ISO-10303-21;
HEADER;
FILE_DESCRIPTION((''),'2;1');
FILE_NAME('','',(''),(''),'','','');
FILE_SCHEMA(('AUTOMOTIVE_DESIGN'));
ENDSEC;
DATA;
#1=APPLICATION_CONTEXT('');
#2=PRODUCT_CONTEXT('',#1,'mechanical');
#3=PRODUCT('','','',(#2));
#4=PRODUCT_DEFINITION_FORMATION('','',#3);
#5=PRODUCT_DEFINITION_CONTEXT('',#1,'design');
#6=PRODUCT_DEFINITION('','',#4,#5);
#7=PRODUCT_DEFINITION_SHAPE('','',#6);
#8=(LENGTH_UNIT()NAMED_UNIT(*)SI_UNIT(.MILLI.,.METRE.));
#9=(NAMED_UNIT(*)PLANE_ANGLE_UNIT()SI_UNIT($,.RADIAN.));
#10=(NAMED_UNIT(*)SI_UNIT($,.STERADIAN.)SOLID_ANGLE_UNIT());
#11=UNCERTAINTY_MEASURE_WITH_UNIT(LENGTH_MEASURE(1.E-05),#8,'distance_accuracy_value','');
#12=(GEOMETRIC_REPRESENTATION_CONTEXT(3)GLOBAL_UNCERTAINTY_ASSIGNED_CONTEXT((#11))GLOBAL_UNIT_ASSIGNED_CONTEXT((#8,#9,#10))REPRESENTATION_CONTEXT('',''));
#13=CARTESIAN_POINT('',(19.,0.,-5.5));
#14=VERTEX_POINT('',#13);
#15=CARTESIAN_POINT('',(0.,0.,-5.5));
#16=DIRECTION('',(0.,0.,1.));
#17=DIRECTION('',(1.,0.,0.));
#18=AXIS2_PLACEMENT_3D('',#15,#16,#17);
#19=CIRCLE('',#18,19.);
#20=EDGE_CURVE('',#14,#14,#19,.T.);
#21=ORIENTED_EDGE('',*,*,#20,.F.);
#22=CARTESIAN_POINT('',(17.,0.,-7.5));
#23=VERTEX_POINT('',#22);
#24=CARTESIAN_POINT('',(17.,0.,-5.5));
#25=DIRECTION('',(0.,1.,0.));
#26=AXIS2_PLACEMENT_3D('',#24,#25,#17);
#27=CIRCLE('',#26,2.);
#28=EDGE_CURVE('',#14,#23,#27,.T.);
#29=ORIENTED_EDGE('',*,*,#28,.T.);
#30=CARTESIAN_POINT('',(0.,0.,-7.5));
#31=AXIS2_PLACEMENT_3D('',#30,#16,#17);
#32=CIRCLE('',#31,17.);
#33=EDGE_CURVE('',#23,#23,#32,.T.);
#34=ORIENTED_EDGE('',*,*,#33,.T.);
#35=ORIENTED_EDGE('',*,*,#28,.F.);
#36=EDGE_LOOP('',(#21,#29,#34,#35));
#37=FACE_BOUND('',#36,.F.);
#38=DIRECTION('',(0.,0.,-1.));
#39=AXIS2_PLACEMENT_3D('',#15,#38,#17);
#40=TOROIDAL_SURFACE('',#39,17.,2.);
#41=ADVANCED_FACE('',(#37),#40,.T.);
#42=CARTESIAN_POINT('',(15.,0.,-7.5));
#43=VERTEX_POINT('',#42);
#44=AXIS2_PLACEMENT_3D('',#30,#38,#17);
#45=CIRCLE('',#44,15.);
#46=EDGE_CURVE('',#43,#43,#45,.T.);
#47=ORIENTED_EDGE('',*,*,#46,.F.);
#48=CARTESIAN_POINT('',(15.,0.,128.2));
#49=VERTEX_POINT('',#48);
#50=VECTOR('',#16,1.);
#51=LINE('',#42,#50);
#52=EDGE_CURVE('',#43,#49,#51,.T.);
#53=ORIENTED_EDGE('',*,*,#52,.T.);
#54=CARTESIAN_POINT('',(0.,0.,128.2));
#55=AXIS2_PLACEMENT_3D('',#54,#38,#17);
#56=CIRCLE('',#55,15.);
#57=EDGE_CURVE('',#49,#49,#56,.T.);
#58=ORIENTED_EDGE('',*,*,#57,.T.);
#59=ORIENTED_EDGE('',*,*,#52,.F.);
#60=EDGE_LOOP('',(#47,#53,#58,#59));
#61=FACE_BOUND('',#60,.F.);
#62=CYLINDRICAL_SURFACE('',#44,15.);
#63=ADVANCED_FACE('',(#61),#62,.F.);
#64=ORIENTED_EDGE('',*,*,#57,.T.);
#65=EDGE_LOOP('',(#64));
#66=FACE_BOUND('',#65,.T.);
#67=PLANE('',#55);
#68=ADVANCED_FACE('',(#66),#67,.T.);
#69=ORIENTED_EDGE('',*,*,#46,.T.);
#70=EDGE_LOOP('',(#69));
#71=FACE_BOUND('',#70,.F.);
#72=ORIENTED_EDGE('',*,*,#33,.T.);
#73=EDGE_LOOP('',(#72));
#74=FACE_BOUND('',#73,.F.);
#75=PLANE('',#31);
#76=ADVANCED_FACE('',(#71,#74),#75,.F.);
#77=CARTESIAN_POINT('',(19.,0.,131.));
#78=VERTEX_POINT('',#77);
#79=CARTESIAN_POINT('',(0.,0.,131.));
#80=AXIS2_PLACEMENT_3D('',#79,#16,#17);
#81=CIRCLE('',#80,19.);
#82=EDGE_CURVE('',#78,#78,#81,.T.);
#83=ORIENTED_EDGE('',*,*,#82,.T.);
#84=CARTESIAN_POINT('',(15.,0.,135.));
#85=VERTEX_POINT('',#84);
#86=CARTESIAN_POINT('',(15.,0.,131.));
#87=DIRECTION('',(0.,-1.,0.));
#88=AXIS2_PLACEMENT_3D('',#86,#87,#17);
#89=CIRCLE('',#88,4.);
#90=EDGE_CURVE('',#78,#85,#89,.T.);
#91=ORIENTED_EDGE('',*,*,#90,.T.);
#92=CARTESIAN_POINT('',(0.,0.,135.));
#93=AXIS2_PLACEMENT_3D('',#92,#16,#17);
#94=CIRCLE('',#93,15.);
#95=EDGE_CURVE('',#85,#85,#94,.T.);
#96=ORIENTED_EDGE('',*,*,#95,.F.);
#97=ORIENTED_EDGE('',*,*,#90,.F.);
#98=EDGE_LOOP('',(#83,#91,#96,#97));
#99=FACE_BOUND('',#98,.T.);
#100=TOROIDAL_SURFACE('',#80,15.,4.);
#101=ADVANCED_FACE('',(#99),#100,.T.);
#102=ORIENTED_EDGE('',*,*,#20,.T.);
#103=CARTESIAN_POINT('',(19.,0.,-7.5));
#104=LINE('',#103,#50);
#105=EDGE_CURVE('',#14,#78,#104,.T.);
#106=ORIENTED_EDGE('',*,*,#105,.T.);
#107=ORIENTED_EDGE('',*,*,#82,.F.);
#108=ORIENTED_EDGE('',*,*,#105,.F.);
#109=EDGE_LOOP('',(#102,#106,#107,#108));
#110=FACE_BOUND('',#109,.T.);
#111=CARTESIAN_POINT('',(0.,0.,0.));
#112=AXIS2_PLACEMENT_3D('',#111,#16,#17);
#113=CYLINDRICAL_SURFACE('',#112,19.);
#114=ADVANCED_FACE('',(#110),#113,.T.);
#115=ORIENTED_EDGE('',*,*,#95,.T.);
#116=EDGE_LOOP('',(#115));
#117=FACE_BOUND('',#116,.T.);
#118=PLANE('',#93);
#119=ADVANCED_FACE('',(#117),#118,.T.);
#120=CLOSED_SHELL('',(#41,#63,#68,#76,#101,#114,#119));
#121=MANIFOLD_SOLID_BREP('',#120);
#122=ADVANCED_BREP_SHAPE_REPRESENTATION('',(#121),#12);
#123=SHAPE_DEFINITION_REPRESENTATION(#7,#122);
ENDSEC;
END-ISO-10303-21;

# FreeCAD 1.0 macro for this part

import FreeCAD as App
import Part
import Sketcher


def edges_at(feature, points):
    """Names of the edges that pass closest to the given points."""
    edges = feature.Shape.Edges
    near = lambda p: min(range(len(edges)), key=lambda i: edges[i].distToShape(Part.Vertex(*p))[0])
    return sorted({f"Edge{near(p) + 1}" for p in points})

doc = App.newDocument("Part")
body = doc.addObject("PartDesign::Body", "Body")

# Sketch on XY plane
sketch1 = body.newObject("Sketcher::SketchObject", "Sketch")
sketch1.AttachmentSupport = (doc.getObject("XY_Plane"), [""])
sketch1.MapMode = "FlatFace"
sketch1.addGeometry(Part.Circle(App.Vector(0, 0, 0), App.Vector(0, 0, 1), 19), False)
sketch1.addConstraint([
    Sketcher.Constraint("Coincident", 0, 3, -1, 1),
    Sketcher.Constraint("Diameter", 0, 38.0),
])
pad1 = body.newObject("PartDesign::Pad", "Pad")
pad1.Profile = sketch1
pad1.Length = 135
doc.recompute()

fillet = body.newObject("PartDesign::Fillet", "Fillet")
fillet.Base = (pad1, edges_at(pad1, [(-19, 0, 135)]))
fillet.Radius = 4

# Sketch on XY plane
sketch2 = body.newObject("Sketcher::SketchObject", "Sketch001")
sketch2.AttachmentSupport = (doc.getObject("XY_Plane"), [""])
sketch2.MapMode = "FlatFace"
sketch2.addGeometry(Part.Circle(App.Vector(0, 0, 0), App.Vector(0, 0, 1), 19), False)
sketch2.addConstraint([
    Sketcher.Constraint("Coincident", 0, 3, -1, 1),
    Sketcher.Constraint("Diameter", 0, 38.0),
])
pad2 = body.newObject("PartDesign::Pad", "Pad001")
pad2.Profile = sketch2
pad2.Length = 7.5
pad2.Reversed = True

# Sketch on XY plane
sketch3 = body.newObject("Sketcher::SketchObject", "Sketch002")
sketch3.AttachmentSupport = (doc.getObject("XY_Plane"), [""])
sketch3.MapMode = "FlatFace"
sketch3.AttachmentOffset = App.Placement(App.Vector(0, 0, -7.5), App.Rotation())
sketch3.addGeometry(Part.Circle(App.Vector(0, 0, 0), App.Vector(0, 0, 1), 15), False)
sketch3.addConstraint([
    Sketcher.Constraint("Coincident", 0, 3, -1, 1),
    Sketcher.Constraint("Diameter", 0, 30.0),
])
pocket1 = body.newObject("PartDesign::Pocket", "Pocket")
pocket1.Profile = sketch3
pocket1.Length = 135.7
pocket1.Reversed = True
doc.recompute()

fillet2 = body.newObject("PartDesign::Fillet", "Fillet001")
fillet2.Base = (pocket1, edges_at(pocket1, [(-19, 0, -7.5)]))
fillet2.Radius = 2

doc.recompute()
